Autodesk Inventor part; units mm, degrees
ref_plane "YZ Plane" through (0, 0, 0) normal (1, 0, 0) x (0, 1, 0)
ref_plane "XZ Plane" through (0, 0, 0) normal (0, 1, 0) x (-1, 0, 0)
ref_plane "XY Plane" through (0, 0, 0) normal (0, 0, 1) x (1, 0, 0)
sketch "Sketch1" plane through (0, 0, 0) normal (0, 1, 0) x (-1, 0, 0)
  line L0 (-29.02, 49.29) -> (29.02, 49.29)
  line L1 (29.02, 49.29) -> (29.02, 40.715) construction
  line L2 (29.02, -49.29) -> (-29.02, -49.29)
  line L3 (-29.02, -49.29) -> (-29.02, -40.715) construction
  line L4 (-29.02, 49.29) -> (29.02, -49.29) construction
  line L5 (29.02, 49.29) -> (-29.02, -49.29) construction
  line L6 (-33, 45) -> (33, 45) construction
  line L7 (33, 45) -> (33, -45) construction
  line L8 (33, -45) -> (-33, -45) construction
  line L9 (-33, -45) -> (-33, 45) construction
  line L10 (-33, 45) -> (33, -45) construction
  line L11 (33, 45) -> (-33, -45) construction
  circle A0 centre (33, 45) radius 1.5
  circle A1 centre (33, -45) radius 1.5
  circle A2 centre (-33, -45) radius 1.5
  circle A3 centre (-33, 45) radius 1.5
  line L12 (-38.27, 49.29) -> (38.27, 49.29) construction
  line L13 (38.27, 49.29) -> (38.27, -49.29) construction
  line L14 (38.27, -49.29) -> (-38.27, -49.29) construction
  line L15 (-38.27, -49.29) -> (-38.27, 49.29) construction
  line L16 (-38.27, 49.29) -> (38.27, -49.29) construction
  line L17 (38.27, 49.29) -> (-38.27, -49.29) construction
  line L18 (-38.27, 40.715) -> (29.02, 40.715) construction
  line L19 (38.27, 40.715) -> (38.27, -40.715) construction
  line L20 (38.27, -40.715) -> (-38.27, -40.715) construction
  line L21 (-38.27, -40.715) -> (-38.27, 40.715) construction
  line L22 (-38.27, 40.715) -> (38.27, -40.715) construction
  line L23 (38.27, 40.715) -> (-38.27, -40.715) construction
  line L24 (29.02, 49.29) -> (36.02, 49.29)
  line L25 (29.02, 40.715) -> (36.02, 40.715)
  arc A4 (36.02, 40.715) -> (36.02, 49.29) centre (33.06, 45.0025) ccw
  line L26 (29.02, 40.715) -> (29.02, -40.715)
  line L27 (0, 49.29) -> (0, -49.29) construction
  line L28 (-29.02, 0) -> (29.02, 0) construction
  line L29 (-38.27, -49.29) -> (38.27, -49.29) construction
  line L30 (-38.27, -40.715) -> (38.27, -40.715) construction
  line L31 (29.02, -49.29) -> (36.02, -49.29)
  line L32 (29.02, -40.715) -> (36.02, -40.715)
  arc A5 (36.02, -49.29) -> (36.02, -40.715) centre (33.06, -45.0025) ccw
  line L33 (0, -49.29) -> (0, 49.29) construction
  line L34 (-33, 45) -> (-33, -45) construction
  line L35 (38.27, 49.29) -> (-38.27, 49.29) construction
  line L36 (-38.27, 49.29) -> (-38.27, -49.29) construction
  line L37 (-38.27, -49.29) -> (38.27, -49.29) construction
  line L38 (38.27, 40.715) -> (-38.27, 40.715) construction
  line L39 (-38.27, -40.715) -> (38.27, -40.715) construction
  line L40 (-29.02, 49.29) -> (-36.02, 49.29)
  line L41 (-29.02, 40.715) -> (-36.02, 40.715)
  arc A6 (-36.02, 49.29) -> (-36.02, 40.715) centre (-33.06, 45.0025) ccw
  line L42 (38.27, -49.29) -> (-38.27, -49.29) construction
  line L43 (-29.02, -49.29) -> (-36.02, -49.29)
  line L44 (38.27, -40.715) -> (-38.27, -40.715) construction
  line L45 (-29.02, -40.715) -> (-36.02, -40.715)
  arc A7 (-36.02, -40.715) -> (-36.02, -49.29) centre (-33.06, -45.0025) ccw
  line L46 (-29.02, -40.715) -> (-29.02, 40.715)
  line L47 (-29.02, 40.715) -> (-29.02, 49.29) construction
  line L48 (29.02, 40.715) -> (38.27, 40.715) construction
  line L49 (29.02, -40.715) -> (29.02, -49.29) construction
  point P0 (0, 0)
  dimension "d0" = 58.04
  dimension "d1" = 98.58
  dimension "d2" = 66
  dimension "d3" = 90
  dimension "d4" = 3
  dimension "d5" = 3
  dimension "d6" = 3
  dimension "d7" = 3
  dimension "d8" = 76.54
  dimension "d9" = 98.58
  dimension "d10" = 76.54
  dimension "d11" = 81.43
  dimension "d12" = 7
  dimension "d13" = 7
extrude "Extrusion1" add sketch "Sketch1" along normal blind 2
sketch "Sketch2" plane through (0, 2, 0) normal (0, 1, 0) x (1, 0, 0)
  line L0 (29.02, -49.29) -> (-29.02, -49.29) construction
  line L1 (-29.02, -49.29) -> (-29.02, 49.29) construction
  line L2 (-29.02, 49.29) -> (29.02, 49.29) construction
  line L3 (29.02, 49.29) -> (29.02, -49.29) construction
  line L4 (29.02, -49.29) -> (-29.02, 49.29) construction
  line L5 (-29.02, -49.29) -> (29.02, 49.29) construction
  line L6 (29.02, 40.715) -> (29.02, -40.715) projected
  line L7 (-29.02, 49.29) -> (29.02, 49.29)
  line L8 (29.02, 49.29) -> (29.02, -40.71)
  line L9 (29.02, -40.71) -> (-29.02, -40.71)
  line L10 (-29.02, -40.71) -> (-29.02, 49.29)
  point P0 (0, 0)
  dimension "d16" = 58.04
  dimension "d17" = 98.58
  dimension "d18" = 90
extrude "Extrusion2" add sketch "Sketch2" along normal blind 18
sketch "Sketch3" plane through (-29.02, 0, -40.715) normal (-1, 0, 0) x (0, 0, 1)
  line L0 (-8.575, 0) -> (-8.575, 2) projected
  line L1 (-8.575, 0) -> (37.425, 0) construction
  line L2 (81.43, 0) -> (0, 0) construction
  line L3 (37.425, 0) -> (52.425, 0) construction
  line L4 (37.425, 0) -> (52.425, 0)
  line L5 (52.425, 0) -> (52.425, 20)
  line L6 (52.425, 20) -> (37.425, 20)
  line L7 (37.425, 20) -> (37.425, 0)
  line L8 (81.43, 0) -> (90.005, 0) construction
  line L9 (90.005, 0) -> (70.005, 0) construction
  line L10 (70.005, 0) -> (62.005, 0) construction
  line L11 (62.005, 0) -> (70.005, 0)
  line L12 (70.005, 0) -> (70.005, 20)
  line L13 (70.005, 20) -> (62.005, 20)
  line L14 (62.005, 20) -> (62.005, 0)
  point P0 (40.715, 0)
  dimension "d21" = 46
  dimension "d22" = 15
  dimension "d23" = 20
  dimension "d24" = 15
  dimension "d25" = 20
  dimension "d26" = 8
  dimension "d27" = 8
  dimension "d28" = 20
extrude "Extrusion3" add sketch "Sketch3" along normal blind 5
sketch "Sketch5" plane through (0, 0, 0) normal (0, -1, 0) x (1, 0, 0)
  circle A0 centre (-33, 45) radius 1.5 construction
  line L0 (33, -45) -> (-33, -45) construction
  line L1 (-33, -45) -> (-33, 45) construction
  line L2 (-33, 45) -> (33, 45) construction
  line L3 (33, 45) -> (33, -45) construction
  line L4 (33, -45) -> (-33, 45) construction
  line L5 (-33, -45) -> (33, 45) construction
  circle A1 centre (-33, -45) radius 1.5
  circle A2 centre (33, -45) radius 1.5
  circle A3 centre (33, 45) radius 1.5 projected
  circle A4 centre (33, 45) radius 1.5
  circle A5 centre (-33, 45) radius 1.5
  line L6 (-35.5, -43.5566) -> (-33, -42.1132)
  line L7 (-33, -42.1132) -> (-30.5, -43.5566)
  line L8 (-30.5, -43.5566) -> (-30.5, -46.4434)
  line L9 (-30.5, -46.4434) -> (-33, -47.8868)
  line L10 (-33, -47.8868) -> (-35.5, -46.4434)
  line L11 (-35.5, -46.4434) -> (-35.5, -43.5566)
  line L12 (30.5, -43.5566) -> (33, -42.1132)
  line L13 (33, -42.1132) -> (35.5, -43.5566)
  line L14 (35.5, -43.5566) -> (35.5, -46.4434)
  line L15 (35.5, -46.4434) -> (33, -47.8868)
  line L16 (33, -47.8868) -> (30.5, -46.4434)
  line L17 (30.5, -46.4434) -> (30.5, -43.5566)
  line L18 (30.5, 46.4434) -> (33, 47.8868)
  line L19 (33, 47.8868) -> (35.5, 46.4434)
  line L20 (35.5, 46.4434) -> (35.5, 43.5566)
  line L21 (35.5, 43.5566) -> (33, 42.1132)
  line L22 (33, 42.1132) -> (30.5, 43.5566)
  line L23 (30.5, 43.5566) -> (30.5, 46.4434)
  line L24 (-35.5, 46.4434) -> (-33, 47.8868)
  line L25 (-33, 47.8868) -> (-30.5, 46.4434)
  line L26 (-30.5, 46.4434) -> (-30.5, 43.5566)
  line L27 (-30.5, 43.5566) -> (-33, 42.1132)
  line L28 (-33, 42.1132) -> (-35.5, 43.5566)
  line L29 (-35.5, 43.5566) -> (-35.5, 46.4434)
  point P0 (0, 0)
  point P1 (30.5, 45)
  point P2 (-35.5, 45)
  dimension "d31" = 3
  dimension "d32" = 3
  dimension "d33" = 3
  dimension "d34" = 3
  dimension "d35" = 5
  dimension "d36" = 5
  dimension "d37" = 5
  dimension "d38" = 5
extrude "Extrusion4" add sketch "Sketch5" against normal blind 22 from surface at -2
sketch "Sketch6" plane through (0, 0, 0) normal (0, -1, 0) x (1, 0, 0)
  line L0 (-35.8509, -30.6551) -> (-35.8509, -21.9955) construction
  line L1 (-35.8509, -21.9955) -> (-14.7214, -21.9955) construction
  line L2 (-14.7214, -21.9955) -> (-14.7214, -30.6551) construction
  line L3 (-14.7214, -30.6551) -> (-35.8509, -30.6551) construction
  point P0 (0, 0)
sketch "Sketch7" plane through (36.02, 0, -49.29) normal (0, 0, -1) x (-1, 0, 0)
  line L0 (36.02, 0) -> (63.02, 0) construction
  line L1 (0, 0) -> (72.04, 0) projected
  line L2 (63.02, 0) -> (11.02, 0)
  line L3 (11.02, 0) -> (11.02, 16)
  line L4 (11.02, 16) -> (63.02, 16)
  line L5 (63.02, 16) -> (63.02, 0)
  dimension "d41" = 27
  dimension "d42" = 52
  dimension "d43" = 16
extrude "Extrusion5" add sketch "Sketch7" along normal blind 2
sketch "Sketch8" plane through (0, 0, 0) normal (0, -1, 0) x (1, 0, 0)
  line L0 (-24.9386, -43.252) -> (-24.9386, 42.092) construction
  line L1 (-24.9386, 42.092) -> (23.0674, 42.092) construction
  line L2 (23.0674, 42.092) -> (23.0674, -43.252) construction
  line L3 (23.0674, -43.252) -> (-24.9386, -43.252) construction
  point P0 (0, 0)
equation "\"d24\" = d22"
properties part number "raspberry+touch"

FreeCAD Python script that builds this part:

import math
import FreeCAD as App
import Part
import Sketcher

V = App.Vector
Q = App.Units.Quantity


def add_polygon(sketch, points):
    """Adds a closed chain of lines whose ends are joined by coincident constraints."""
    first, n = sketch.GeometryCount, len(points)
    for a, b in zip(points, points[1:] + points[:1]):
        sketch.addGeometry(Part.LineSegment(App.Vector(*a, 0), App.Vector(*b, 0)), False)
    for i in range(n):
        sketch.addConstraint(Sketcher.Constraint("Coincident", first + i, 2, first + (i + 1) % n, 1))

doc = App.newDocument("Part")
body = doc.addObject("PartDesign::Body", "Body")

sketch1 = doc.addObject("Sketcher::SketchObject", "Sketch")
body.addObject(sketch1)
sketch1.AttachmentSupport = (doc.XZ_Plane, [""])
sketch1.MapMode = "FlatFace"
sketch1.addGeometry([
    Part.LineSegment(V(-36, 49.3, 0), V(36, 49.3, 0)),
    Part.ArcOfCircle(Part.Circle(V(33.1, 45, 0), V(0, 0, 1), 5.2), math.radians(-55), math.radians(55)),
    Part.LineSegment(V(36, 40.7, 0), V(29, 40.7, 0)),
    Part.LineSegment(V(29, 40.7, 0), V(29, -40.7, 0)),
    Part.LineSegment(V(29, -40.7, 0), V(36, -40.7, 0)),
    Part.ArcOfCircle(Part.Circle(V(33.1, -45, 0), V(0, 0, 1), 5.2), math.radians(-55), math.radians(55)),
    Part.LineSegment(V(36, -49.3, 0), V(-36, -49.3, 0)),
    Part.ArcOfCircle(Part.Circle(V(-33.1, -45, 0), V(0, 0, 1), 5.2), math.radians(125), math.radians(235)),
    Part.LineSegment(V(-36, -40.7, 0), V(-29, -40.7, 0)),
    Part.LineSegment(V(-29, -40.7, 0), V(-29, 40.7, 0)),
    Part.LineSegment(V(-29, 40.7, 0), V(-36, 40.7, 0)),
    Part.ArcOfCircle(Part.Circle(V(-33.1, 45, 0), V(0, 0, 1), 5.2), math.radians(125), math.radians(235)),
    Part.Circle(V(33, -45, 0), V(0, 0, 1), 1.5),
    Part.Circle(V(-33, -45, 0), V(0, 0, 1), 1.5),
    Part.Circle(V(33, 45, 0), V(0, 0, 1), 1.5),
    Part.Circle(V(-33, 45, 0), V(0, 0, 1), 1.5),
], False)
sketch1.addConstraint([
    Sketcher.Constraint("Coincident", 0, 2, 1, 2),
    Sketcher.Constraint("Coincident", 1, 1, 2, 1),
    Sketcher.Constraint("Coincident", 2, 2, 3, 1),
    Sketcher.Constraint("Coincident", 3, 2, 4, 1),
    Sketcher.Constraint("Coincident", 4, 2, 5, 2),
    Sketcher.Constraint("Coincident", 5, 1, 6, 1),
    Sketcher.Constraint("Coincident", 6, 2, 7, 2),
    Sketcher.Constraint("Coincident", 7, 1, 8, 1),
    Sketcher.Constraint("Coincident", 8, 2, 9, 1),
    Sketcher.Constraint("Coincident", 9, 2, 10, 1),
    Sketcher.Constraint("Coincident", 10, 2, 11, 2),
    Sketcher.Constraint("Coincident", 11, 1, 0, 1),
    Sketcher.Constraint("Horizontal", 0),
    Sketcher.Constraint("Horizontal", 2),
    Sketcher.Constraint("Vertical", 3),
    Sketcher.Constraint("Horizontal", 4),
    Sketcher.Constraint("Horizontal", 6),
    Sketcher.Constraint("Horizontal", 8),
    Sketcher.Constraint("Vertical", 9),
    Sketcher.Constraint("Horizontal", 10),
    Sketcher.Constraint("Equal", 1, 5),
    Sketcher.Constraint("Equal", 5, 7),
    Sketcher.Constraint("Equal", 7, 11),
    Sketcher.Constraint("Equal", 12, 13),
    Sketcher.Constraint("Equal", 13, 14),
    Sketcher.Constraint("Equal", 14, 15),
    Sketcher.Constraint("Symmetric", 1, 3, 7, 3, -1, 1),
    Sketcher.Constraint("Symmetric", 5, 3, 11, 3, -1, 1),
    Sketcher.Constraint("Symmetric", 13, 3, 14, 3, -1, 1),
    Sketcher.Constraint("Symmetric", 12, 3, 15, 3, -1, 1),
    Sketcher.Constraint("Symmetric", 2, 2, 8, 2, -1, 1),
    Sketcher.Constraint("Symmetric", 5, 3, 7, 3, -2),
    Sketcher.Constraint("Symmetric", 12, 3, 13, 3, -2),
    Sketcher.Constraint("Horizontal", 4, 2, 7, 1),
    Sketcher.Constraint("Horizontal", 2, 2, 9, 2),
    Sketcher.Constraint("Vertical", 0, 2, 1, 1),
    Sketcher.Constraint("Vertical", 4, 2, 5, 1),
    Sketcher.Constraint("Diameter", 12, Q("3 mm")),
    Sketcher.Constraint("DistanceX", 2, 2, 2, 1, Q("7 mm")),
    Sketcher.Constraint("DistanceX", 13, 3, 12, 3, Q("66 mm")),
    Sketcher.Constraint("DistanceY", 12, 3, 14, 3, Q("90 mm")),
    Sketcher.Constraint("DistanceY", 3, 2, 3, 1, Q("81.43 mm")),
    Sketcher.Constraint("Radius", 1, Q("5.21 mm")),
    Sketcher.Constraint("DistanceX", 8, 2, 3, 2, Q("58.04 mm")),
    Sketcher.Constraint("DistanceX", -1, 1, 1, 3, Q("33.06 mm")),
])
pad1 = doc.addObject("PartDesign::Pad", "Pad")
body.addObject(pad1)
pad1.Profile = sketch1
pad1.Length = 2
pad1.Reversed = True

sketch2 = doc.addObject("Sketcher::SketchObject", "Sketch001")
body.addObject(sketch2)
sketch2.AttachmentSupport = (doc.XZ_Plane, [""])
sketch2.MapMode = "FlatFace"
sketch2.AttachmentOffset = App.Placement(V(0, 0, -2), App.Rotation())
add_polygon(sketch2, [(29, 41), (29, -49), (-29, -49), (-29, 41)])
sketch2.addConstraint([
    Sketcher.Constraint("Vertical", 0),
    Sketcher.Constraint("Horizontal", 1),
    Sketcher.Constraint("Vertical", 2),
    Sketcher.Constraint("Horizontal", 3),
    Sketcher.Constraint("DistanceY", 0, 2, 0, 1, Q("90 mm")),
    Sketcher.Constraint("DistanceX", 1, 2, 1, 1, Q("58.04 mm")),
    Sketcher.Constraint("DistanceX", -1, 1, 0, 2, Q("29.02 mm")),
    Sketcher.Constraint("DistanceY", 0, 2, -1, 1, Q("49.29 mm")),
])
pad2 = doc.addObject("PartDesign::Pad", "Pad001")
body.addObject(pad2)
pad2.Profile = sketch2
pad2.Length = 18
pad2.Reversed = True

sketch3 = doc.addObject("Sketcher::SketchObject", "Sketch002")
body.addObject(sketch3)
sketch3.AttachmentSupport = (doc.YZ_Plane, [""])
sketch3.MapMode = "FlatFace"
sketch3.AttachmentOffset = App.Placement(V(0, 0, -29.02), App.Rotation())
add_polygon(sketch3, [(20, -3), (0, -3), (0, 12), (20, 12)])
add_polygon(sketch3, [(20, 21), (0, 21), (0, 29), (20, 29)])
sketch3.addConstraint([
    Sketcher.Constraint("Horizontal", 0),
    Sketcher.Constraint("Vertical", 1),
    Sketcher.Constraint("Horizontal", 2),
    Sketcher.Constraint("Vertical", 3),
    Sketcher.Constraint("Horizontal", 4),
    Sketcher.Constraint("Vertical", 5),
    Sketcher.Constraint("Horizontal", 6),
    Sketcher.Constraint("Vertical", 7),
    Sketcher.Constraint("PointOnObject", 0, 2, -2),
    Sketcher.Constraint("PointOnObject", 4, 2, -2),
    Sketcher.Constraint("Vertical", 3, 2, 6, 2),
    Sketcher.Constraint("DistanceX", 0, 2, 0, 1, Q("20 mm")),
    Sketcher.Constraint("DistanceY", 1, 1, 1, 2, Q("15 mm")),
    Sketcher.Constraint("DistanceY", 5, 1, 5, 2, Q("8 mm")),
    Sketcher.Constraint("DistanceY", 0, 2, -1, 1, Q("3.29 mm")),
    Sketcher.Constraint("DistanceY", -1, 1, 4, 2, Q("21.29 mm")),
])
pad3 = doc.addObject("PartDesign::Pad", "Pad002")
body.addObject(pad3)
pad3.Profile = sketch3
pad3.Length = 5
pad3.Reversed = True

sketch4 = doc.addObject("Sketcher::SketchObject", "Sketch003")
body.addObject(sketch4)
sketch4.AttachmentSupport = (doc.XZ_Plane, [""])
sketch4.MapMode = "FlatFace"
sketch4.AttachmentOffset = App.Placement(V(0, 0, -2), App.Rotation())
add_polygon(sketch4, [(-33, -42.1), (-35.5, -43.6), (-35.5, -46.4), (-33, -47.9), (-30.5, -46.4), (-30.5, -43.6)])
sketch4.addGeometry(Part.Circle(V(-33, -45, 0), V(0, 0, 1), 1.5), False)
add_polygon(sketch4, [(33, -42.1), (30.5, -43.6), (30.5, -46.4), (33, -47.9), (35.5, -46.4), (35.5, -43.6)])
sketch4.addGeometry(Part.Circle(V(33, -45, 0), V(0, 0, 1), 1.5), False)
add_polygon(sketch4, [(33, 47.9), (30.5, 46.4), (30.5, 43.6), (33, 42.1), (35.5, 43.6), (35.5, 46.4)])
sketch4.addGeometry(Part.Circle(V(33, 45, 0), V(0, 0, 1), 1.5), False)
add_polygon(sketch4, [(-33, 47.9), (-35.5, 46.4), (-35.5, 43.6), (-33, 42.1), (-30.5, 43.6), (-30.5, 46.4)])
sketch4.addGeometry(Part.Circle(V(-33, 45, 0), V(0, 0, 1), 1.5), False)
sketch4.addConstraint([
    Sketcher.Constraint("Vertical", 1),
    Sketcher.Constraint("Vertical", 4),
    Sketcher.Constraint("Vertical", 8),
    Sketcher.Constraint("Vertical", 11),
    Sketcher.Constraint("Vertical", 15),
    Sketcher.Constraint("Vertical", 18),
    Sketcher.Constraint("Vertical", 22),
    Sketcher.Constraint("Vertical", 25),
    Sketcher.Constraint("Equal", 6, 13),
    Sketcher.Constraint("Equal", 13, 20),
    Sketcher.Constraint("Equal", 20, 27),
    Sketcher.Constraint("Symmetric", 6, 3, 20, 3, -1, 1),
    Sketcher.Constraint("Symmetric", 13, 3, 27, 3, -1, 1),
    Sketcher.Constraint("Symmetric", 3, 2, 14, 2, -1, 1),
    Sketcher.Constraint("Symmetric", 5, 2, 16, 2, -1, 1),
    Sketcher.Constraint("Symmetric", 0, 2, 17, 2, -1, 1),
    Sketcher.Constraint("Symmetric", 2, 2, 19, 2, -1, 1),
    Sketcher.Constraint("Symmetric", 10, 2, 21, 2, -1, 1),
    Sketcher.Constraint("Symmetric", 12, 2, 23, 2, -1, 1),
    Sketcher.Constraint("Symmetric", 7, 2, 24, 2, -1, 1),
    Sketcher.Constraint("Symmetric", 9, 2, 26, 2, -1, 1),
    Sketcher.Constraint("Symmetric", 6, 3, 13, 3, -2),
    Sketcher.Constraint("Symmetric", 4, 2, 7, 2, -2),
    Sketcher.Constraint("Symmetric", 2, 2, 9, 2, -2),
    Sketcher.Constraint("Symmetric", 1, 2, 10, 2, -2),
    Sketcher.Constraint("Symmetric", 5, 2, 12, 2, -2),
    Sketcher.Constraint("Parallel", 0, 3),
    Sketcher.Constraint("Parallel", 2, 5),
    Sketcher.Constraint("Parallel", 3, 7),
    Sketcher.Constraint("Parallel", 5, 9),
    Sketcher.Constraint("Parallel", 9, 12),
    Sketcher.Constraint("Parallel", 12, 16),
    Sketcher.Constraint("Parallel", 16, 19),
    Sketcher.Constraint("Parallel", 19, 23),
    Sketcher.Constraint("Parallel", 23, 26),
    Sketcher.Constraint("Horizontal", 1, 2, 3, 2),
    Sketcher.Constraint("Horizontal", 0, 2, 4, 2),
    Sketcher.Constraint("Vertical", 27, 3, 2, 2),
    Sketcher.Constraint("Diameter", 6, Q("3 mm")),
    Sketcher.Constraint("DistanceX", 1, 2, 3, 2, Q("5 mm")),
    Sketcher.Constraint("Angle", 0, Q("-149.9996 deg")),
    Sketcher.Constraint("DistanceX", 6, 3, -1, 1, Q("33 mm")),
    Sketcher.Constraint("DistanceY", 6, 3, -1, 1, Q("45 mm")),
    Sketcher.Constraint("DistanceY", 7, 2, 14, 2, Q("90 mm")),
    Sketcher.Constraint("DistanceY", 1, 2, 1, 1, Q("2.8868 mm")),
])
pad4 = doc.addObject("PartDesign::Pad", "Pad003")
body.addObject(pad4)
pad4.Profile = sketch4
pad4.Length = 22
pad4.Reversed = True

sketch5 = doc.addObject("Sketcher::SketchObject", "Sketch004")
body.addObject(sketch5)
sketch5.AttachmentSupport = (doc.XY_Plane, [""])
sketch5.MapMode = "FlatFace"
sketch5.AttachmentOffset = App.Placement(V(0, 0, -49.29), App.Rotation())
add_polygon(sketch5, [(25, 16), (25, 0), (-27, 0), (-27, 16)])
sketch5.addConstraint([
    Sketcher.Constraint("Vertical", 0),
    Sketcher.Constraint("Horizontal", 1),
    Sketcher.Constraint("Vertical", 2),
    Sketcher.Constraint("Horizontal", 3),
    Sketcher.Constraint("PointOnObject", 0, 2, -1),
    Sketcher.Constraint("DistanceX", 1, 2, 1, 1, Q("52 mm")),
    Sketcher.Constraint("DistanceY", 0, 2, 0, 1, Q("16 mm")),
    Sketcher.Constraint("DistanceX", 1, 2, -1, 1, Q("27 mm")),
])
pad5 = doc.addObject("PartDesign::Pad", "Pad004")
body.addObject(pad5)
pad5.Profile = sketch5
pad5.Length = 2
pad5.Reversed = True

doc.recompute()
